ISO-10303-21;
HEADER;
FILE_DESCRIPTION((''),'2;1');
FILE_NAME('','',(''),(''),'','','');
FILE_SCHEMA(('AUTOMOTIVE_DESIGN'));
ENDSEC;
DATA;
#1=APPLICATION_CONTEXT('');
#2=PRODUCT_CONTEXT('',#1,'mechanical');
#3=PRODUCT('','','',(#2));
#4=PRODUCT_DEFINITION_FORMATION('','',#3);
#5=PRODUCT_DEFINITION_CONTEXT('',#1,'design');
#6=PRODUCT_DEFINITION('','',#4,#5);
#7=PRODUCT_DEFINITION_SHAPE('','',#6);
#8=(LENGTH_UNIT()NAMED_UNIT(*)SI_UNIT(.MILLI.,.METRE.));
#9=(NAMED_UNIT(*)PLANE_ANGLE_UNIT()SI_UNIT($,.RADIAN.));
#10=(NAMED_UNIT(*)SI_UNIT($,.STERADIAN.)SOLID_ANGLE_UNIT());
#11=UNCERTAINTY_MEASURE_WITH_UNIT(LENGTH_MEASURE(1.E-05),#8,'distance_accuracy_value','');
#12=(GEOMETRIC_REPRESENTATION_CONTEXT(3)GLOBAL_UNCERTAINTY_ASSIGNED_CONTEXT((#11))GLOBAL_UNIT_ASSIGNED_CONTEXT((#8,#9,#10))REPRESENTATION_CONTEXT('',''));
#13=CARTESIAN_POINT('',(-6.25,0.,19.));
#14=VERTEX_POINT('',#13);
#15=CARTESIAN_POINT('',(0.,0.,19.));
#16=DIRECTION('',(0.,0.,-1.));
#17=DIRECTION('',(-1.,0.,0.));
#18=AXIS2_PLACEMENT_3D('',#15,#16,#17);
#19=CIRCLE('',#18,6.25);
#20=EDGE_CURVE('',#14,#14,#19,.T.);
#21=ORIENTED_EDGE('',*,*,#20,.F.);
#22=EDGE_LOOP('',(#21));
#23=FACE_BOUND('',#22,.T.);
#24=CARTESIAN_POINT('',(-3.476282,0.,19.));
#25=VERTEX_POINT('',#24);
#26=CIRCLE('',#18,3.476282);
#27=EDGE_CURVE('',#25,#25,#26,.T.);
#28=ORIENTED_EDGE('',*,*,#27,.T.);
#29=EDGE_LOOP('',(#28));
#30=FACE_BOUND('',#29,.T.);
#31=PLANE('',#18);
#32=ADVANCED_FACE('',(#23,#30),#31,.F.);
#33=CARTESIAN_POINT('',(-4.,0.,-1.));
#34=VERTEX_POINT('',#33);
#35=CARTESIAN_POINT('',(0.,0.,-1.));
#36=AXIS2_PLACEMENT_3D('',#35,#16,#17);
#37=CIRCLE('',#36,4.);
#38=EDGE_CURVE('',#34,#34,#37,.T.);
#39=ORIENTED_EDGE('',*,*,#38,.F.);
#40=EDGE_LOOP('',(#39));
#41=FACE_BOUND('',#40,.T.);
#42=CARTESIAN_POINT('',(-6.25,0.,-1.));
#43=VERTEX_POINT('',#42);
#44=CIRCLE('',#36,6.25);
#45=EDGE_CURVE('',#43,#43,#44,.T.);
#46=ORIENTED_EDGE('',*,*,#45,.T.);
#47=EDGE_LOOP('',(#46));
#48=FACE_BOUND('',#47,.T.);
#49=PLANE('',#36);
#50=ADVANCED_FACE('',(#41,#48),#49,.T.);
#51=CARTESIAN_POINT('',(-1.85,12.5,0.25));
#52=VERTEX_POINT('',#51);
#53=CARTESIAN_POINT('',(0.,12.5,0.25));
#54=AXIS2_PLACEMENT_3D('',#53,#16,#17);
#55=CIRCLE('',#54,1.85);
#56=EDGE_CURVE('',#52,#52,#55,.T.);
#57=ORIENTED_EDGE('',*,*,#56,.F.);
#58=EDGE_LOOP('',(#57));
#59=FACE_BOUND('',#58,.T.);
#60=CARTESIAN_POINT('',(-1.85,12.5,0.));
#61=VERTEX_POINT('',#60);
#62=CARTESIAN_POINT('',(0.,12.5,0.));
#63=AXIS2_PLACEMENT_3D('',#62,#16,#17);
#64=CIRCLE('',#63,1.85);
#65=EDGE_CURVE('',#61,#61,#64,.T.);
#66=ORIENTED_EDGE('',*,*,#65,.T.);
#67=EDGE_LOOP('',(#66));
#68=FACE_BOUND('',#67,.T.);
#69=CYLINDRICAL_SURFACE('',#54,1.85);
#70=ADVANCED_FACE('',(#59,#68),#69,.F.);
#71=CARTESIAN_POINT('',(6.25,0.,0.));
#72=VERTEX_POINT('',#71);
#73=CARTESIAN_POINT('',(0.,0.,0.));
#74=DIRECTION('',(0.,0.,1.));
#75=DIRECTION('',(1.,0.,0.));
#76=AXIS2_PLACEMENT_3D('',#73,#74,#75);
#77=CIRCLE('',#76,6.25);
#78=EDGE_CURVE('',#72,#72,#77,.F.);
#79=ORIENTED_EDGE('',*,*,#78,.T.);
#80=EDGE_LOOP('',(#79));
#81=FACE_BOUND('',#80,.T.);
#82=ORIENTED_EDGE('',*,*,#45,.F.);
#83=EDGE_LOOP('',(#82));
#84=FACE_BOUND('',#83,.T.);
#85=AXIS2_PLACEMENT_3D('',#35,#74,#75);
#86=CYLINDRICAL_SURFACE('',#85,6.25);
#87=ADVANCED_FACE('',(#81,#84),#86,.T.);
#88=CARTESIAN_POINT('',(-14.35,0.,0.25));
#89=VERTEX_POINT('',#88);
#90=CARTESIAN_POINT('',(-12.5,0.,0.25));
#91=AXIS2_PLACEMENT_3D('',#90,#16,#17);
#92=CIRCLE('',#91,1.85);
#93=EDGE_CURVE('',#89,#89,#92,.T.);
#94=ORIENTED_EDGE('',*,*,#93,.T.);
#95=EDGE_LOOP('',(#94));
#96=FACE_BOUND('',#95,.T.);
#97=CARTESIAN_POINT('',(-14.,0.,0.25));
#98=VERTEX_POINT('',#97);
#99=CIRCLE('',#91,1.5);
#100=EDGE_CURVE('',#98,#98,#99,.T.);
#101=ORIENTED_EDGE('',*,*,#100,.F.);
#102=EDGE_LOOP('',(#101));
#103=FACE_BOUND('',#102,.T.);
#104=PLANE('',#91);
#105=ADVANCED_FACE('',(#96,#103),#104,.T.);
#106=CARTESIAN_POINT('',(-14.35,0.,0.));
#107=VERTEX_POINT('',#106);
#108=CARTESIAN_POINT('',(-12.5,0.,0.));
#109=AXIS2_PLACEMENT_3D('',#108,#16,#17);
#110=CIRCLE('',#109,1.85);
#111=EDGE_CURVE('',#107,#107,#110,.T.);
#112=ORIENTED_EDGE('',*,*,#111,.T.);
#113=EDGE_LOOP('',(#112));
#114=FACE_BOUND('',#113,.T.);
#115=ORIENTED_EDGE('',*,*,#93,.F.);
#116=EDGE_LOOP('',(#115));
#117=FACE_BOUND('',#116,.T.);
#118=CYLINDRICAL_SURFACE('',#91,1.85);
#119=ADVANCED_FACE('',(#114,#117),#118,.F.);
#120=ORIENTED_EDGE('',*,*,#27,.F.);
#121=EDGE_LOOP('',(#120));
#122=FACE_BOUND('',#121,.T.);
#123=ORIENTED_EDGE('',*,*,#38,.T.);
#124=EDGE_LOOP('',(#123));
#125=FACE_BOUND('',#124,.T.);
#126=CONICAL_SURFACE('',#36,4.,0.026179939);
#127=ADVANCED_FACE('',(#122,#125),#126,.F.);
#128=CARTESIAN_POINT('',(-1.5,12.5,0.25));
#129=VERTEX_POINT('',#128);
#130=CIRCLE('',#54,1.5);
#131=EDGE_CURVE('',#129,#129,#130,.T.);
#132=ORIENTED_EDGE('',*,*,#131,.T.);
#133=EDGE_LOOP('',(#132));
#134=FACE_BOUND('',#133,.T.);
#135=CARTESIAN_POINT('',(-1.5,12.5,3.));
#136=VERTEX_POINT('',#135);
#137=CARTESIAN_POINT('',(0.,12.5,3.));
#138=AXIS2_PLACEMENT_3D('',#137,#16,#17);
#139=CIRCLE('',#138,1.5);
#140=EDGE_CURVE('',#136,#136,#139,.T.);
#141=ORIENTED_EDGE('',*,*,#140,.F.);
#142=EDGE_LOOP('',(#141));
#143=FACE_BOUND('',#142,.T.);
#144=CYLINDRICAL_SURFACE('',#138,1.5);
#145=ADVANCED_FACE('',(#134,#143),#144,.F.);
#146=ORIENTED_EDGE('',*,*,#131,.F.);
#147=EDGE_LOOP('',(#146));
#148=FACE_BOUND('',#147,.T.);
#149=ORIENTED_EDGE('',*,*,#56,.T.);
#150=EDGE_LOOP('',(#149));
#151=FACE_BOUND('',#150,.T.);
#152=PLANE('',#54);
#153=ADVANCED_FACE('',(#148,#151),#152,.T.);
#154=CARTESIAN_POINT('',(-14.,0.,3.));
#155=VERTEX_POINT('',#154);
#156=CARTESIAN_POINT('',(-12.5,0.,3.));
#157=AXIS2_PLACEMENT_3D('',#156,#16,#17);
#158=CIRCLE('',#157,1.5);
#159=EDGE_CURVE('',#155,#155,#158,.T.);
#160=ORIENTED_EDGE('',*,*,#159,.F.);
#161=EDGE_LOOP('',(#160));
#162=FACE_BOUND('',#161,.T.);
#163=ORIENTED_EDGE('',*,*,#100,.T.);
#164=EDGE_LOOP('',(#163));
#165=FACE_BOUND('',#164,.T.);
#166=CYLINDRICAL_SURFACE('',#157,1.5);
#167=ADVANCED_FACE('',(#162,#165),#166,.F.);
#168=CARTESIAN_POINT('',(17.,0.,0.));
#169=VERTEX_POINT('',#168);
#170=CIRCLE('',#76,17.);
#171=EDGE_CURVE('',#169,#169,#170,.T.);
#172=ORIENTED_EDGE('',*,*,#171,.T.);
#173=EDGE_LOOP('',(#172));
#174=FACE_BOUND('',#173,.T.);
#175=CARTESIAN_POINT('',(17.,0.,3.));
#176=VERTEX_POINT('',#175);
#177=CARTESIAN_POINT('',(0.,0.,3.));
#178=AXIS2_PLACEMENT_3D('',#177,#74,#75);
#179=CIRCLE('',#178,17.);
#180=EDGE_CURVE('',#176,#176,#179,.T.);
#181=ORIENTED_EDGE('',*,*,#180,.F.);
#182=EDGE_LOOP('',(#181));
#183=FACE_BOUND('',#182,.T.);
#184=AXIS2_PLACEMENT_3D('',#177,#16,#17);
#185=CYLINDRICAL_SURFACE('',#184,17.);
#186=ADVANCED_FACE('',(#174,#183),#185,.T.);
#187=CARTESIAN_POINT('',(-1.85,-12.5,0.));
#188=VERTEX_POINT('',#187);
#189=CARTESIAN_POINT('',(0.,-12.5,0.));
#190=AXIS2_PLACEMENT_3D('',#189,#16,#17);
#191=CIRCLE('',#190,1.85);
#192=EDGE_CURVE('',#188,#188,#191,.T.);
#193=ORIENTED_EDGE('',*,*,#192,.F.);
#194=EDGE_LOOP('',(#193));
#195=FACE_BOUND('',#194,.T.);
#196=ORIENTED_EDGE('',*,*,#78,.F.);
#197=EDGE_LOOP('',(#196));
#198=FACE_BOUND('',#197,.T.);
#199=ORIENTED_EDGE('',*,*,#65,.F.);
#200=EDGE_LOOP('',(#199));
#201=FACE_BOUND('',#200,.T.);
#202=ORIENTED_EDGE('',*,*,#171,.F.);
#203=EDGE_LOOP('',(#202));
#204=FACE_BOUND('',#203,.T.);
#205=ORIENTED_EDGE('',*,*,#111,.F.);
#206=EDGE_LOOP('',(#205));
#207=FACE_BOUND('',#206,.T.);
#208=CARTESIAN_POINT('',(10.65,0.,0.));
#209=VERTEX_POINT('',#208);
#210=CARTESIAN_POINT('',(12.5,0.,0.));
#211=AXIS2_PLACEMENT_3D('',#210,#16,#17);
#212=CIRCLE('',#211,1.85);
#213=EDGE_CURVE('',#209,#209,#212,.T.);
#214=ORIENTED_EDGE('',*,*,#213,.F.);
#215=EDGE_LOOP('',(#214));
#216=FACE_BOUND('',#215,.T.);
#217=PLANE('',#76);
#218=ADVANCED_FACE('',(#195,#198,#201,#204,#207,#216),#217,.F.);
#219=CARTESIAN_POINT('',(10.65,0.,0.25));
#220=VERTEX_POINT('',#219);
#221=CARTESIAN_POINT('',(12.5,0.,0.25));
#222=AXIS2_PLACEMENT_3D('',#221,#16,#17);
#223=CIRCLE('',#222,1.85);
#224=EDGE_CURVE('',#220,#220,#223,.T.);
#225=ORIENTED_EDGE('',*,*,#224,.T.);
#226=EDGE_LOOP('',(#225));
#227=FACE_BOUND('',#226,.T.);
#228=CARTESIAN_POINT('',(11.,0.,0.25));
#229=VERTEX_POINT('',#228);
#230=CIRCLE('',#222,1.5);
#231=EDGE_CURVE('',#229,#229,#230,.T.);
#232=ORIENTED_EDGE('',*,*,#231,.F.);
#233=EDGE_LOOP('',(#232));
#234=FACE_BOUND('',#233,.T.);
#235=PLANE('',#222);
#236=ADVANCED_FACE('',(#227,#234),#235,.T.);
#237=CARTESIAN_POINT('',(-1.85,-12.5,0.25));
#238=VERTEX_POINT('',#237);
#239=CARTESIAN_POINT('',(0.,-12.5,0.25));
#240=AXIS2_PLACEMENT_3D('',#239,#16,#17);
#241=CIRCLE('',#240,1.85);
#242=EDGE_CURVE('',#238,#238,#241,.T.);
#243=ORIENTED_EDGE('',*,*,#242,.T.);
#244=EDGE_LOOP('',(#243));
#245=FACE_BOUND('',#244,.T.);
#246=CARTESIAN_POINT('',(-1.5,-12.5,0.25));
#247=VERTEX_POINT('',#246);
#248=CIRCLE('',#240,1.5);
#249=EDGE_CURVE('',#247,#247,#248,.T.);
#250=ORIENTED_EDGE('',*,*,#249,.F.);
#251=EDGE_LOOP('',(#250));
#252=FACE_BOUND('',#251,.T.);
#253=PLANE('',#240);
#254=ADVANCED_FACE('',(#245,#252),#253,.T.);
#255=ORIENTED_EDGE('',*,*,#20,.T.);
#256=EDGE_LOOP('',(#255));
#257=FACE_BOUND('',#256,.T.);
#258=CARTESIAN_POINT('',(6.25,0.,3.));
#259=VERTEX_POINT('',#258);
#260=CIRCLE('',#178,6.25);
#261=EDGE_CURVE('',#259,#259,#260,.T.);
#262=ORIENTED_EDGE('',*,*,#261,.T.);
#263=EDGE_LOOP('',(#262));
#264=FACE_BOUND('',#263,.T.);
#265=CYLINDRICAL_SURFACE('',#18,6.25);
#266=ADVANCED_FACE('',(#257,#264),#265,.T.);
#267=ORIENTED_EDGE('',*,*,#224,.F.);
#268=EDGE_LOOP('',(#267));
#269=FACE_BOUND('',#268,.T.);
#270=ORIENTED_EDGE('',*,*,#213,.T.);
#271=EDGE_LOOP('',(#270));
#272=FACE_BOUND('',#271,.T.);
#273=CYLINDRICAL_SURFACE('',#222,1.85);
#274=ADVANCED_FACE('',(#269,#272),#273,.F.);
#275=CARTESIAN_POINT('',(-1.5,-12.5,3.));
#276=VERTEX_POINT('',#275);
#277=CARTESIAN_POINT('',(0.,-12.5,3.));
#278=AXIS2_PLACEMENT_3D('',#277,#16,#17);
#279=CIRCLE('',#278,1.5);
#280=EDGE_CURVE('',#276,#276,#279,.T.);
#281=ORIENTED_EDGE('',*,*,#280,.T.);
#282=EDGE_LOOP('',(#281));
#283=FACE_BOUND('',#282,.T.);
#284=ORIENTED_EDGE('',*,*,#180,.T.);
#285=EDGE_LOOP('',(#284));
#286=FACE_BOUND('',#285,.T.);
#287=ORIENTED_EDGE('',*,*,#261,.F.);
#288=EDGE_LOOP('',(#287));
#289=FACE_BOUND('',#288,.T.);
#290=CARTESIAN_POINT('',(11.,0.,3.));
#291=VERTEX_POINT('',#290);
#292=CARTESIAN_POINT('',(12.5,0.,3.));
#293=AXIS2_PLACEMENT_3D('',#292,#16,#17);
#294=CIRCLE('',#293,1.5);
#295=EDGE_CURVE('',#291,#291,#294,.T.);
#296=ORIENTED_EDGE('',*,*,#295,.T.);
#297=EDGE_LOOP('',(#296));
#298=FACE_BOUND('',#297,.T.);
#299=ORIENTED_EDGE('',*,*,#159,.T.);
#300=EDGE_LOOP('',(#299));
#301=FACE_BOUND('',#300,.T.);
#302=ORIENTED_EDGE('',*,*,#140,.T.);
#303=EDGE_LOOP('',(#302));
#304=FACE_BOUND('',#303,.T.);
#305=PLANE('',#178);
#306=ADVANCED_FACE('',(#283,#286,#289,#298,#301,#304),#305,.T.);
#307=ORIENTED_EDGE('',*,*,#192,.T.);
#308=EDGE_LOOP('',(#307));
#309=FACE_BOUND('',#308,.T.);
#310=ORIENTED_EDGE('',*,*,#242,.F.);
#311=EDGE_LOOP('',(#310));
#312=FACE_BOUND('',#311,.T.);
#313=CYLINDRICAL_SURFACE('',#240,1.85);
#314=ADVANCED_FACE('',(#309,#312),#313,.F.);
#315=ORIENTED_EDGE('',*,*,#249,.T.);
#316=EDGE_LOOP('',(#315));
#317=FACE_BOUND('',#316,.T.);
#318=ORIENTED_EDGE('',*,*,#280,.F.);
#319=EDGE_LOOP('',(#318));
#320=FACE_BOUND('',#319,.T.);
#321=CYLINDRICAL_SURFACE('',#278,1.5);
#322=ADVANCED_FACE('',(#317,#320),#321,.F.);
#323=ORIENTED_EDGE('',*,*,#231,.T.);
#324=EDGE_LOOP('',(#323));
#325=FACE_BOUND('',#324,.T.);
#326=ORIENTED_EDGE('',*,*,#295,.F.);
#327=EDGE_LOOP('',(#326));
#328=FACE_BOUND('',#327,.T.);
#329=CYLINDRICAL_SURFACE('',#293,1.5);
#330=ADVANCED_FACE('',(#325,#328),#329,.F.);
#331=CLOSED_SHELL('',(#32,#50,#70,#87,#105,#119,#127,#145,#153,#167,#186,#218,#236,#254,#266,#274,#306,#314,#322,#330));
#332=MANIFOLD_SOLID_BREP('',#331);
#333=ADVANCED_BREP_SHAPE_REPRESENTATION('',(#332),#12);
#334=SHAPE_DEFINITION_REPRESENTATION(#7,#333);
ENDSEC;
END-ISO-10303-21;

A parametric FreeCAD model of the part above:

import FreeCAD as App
import Part
import Sketcher

V = App.Vector


def faces_at(feature, points):
    """Names of the faces that lie closest to the given points."""
    faces = feature.Shape.Faces
    near = lambda p: min(range(len(faces)), key=lambda i: faces[i].distToShape(Part.Vertex(*p))[0])
    return sorted({f"Face{near(p) + 1}" for p in points})

doc = App.newDocument("Part")
params = doc.addObject("Spreadsheet::Sheet", "Params")
for row, (alias, value) in enumerate([
    ("sketch1_diameter", "34 mm"),
    ("pad1_length", "3 mm"),
    ("sketch2_diameter", "3 mm"),
    ("sketch3_diameter", "12.5 mm"),
    ("pad2_length", "1 mm"),
    ("sketch4_diameter", "12.5 mm"),
    ("pad3_length", "20 mm"),
    ("sketch5_diameter", "8 mm"),
    ("pad4_length", "32.272992 mm"),
    ("draft_angle", "1.5 deg"),
    ("sketch6_diameter", "3 mm"),
    ("sketch6_diameter2", "3.7 mm"),
    ("pocket2_length", "0.25 mm"),
], start=1):
    params.set(f"A{row}", alias)
    params.set(f"B{row}", "=" + value)
    params.setAlias(f"B{row}", alias)

body = doc.addObject("PartDesign::Body", "Body")

# Sketch on XY plane
sketch1 = doc.addObject("Sketcher::SketchObject", "Sketch")
body.addObject(sketch1)
sketch1.AttachmentSupport = (doc.XY_Plane, [""])
sketch1.MapMode = "FlatFace"
sketch1.addGeometry(Part.Circle(V(0, 0, 0), V(0, 0, 1), 17), False)
sketch1.addConstraint([
    Sketcher.Constraint("Coincident", 0, 3, -1, 1),
    Sketcher.Constraint("Diameter", 0, 34.0),
])
sketch1.setExpression("Constraints[1]", "Params.sketch1_diameter")
pad1 = doc.addObject("PartDesign::Pad", "Pad")
body.addObject(pad1)
pad1.Profile = sketch1
pad1.setExpression("Length", "Params.pad1_length")

# Sketch on XY plane
sketch2 = doc.addObject("Sketcher::SketchObject", "Sketch001")
body.addObject(sketch2)
sketch2.AttachmentSupport = (doc.XY_Plane, [""])
sketch2.MapMode = "FlatFace"
sketch2.addGeometry([
    Part.Circle(V(0, 12.5, 0), V(0, 0, 1), 1.5),
    Part.Circle(V(-12.5, 0, 0), V(0, 0, 1), 1.5),
    Part.Circle(V(0, -12.5, 0), V(0, 0, 1), 1.5),
    Part.Circle(V(12.5, 0, 0), V(0, 0, 1), 1.5),
], False)
sketch2.addConstraint([
    Sketcher.Constraint("Equal", 0, 1),
    Sketcher.Constraint("Equal", 1, 2),
    Sketcher.Constraint("Equal", 2, 3),
    Sketcher.Constraint("Symmetric", 0, 3, 2, 3, -1, 1),
    Sketcher.Constraint("Symmetric", 1, 3, 3, 3, -1, 1),
    Sketcher.Constraint("PointOnObject", 0, 3, -2),
    Sketcher.Constraint("PointOnObject", 1, 3, -1),
    Sketcher.Constraint("Diameter", 0, 3.0),
    Sketcher.Constraint("DistanceY", 2, 3, 0, 3, 25.0),
    Sketcher.Constraint("DistanceX", 1, 3, 3, 3, 25.0),
])
sketch2.setExpression("Constraints[7]", "Params.sketch2_diameter")
pocket1 = doc.addObject("PartDesign::Pocket", "Pocket")
body.addObject(pocket1)
pocket1.Profile = sketch2
pocket1.Type = "ThroughAll"
pocket1.Reversed = True

# Sketch on XY plane
sketch3 = doc.addObject("Sketcher::SketchObject", "Sketch002")
body.addObject(sketch3)
sketch3.AttachmentSupport = (doc.XY_Plane, [""])
sketch3.MapMode = "FlatFace"
sketch3.addGeometry(Part.Circle(V(0, 0, 0), V(0, 0, 1), 6), False)
sketch3.addConstraint([
    Sketcher.Constraint("Coincident", 0, 3, -1, 1),
    Sketcher.Constraint("Diameter", 0, 12.5),
])
sketch3.setExpression("Constraints[1]", "Params.sketch3_diameter")
pad2 = doc.addObject("PartDesign::Pad", "Pad001")
body.addObject(pad2)
pad2.Profile = sketch3
pad2.setExpression("Length", "Params.pad2_length")
pad2.Reversed = True

# Sketch on XY plane
sketch4 = doc.addObject("Sketcher::SketchObject", "Sketch003")
body.addObject(sketch4)
sketch4.AttachmentSupport = (doc.XY_Plane, [""])
sketch4.MapMode = "FlatFace"
sketch4.AttachmentOffset = App.Placement(V(0, 0, 19), App.Rotation())
sketch4.addGeometry(Part.Circle(V(0, 0, 0), V(0, 0, 1), 6), False)
sketch4.addConstraint([
    Sketcher.Constraint("Coincident", 0, 3, -1, 1),
    Sketcher.Constraint("Diameter", 0, 12.5),
])
sketch4.setExpression("Constraints[1]", "Params.sketch4_diameter")
pad3 = doc.addObject("PartDesign::Pad", "Pad002")
body.addObject(pad3)
pad3.Profile = sketch4
pad3.setExpression("Length", "Params.pad3_length")
pad3.Reversed = True
body2 = doc.addObject("PartDesign::Body", "Body001")

# Sketch on XY plane
sketch5 = doc.addObject("Sketcher::SketchObject", "Sketch004")
body2.addObject(sketch5)
sketch5.AttachmentSupport = (doc.getObject("XY_Plane001"), [""])
sketch5.MapMode = "FlatFace"
sketch5.AttachmentOffset = App.Placement(V(0, 0, -1), App.Rotation())
sketch5.addGeometry(Part.Circle(V(0, 0, 0), V(0, 0, 1), 4), False)
sketch5.addConstraint([
    Sketcher.Constraint("Coincident", 0, 3, -1, 1),
    Sketcher.Constraint("Diameter", 0, 8.0),
])
sketch5.setExpression("Constraints[1]", "Params.sketch5_diameter")
pad4 = doc.addObject("PartDesign::Pad", "Pad003")
body2.addObject(pad4)
pad4.Profile = sketch5
pad4.setExpression("Length", "Params.pad4_length")
doc.recompute()

datumplane = doc.addObject("PartDesign::Plane", "DatumPlane")
body2.addObject(datumplane)
datumplane.AttachmentSupport = (doc.getObject("XY_Plane001"), [""])
datumplane.MapMode = "FlatFace"
datumplane.AttachmentOffset = App.Placement(V(0, 0, -1), App.Rotation())
draft = doc.addObject("PartDesign::Draft", "Draft")
body2.addObject(draft)
draft.Base = (pad4, faces_at(pad4, [(4, 0, 15.136)]))
draft.NeutralPlane = (datumplane, [""])
draft.setExpression("Angle", "Params.draft_angle")
draft.Reversed = False
doc.recompute()

boolean = doc.addObject("PartDesign::Boolean", "Boolean")
body.addObject(boolean)
boolean.Type = "Cut"
boolean.addObjects([body2])

# Sketch on XY plane
sketch6 = doc.addObject("Sketcher::SketchObject", "Sketch005")
body.addObject(sketch6)
sketch6.AttachmentSupport = (doc.XY_Plane, [""])
sketch6.MapMode = "FlatFace"
sketch6.addGeometry([
    Part.Circle(V(0, 12.5, 0), V(0, 0, 1), 1.9),  # 0
    Part.Circle(V(0, 12.5, 0), V(0, 0, 1), 1.5),  # 1
    Part.Circle(V(-12.5, 0, 0), V(0, 0, 1), 1.9),  # 2
    Part.Circle(V(-12.5, 0, 0), V(0, 0, 1), 1.5),  # 3
    Part.Circle(V(0, -12.5, 0), V(0, 0, 1), 1.9),  # 4
    Part.Circle(V(0, -12.5, 0), V(0, 0, 1), 1.5),  # 5
    Part.Circle(V(12.5, 0, 0), V(0, 0, 1), 1.9),  # 6
    Part.Circle(V(12.5, 0, 0), V(0, 0, 1), 1.5),  # 7
], False)
sketch6.addConstraint([
    Sketcher.Constraint("Coincident", 1, 3, 0, 3),
    Sketcher.Constraint("Coincident", 3, 3, 2, 3),
    Sketcher.Constraint("Coincident", 5, 3, 4, 3),
    Sketcher.Constraint("Coincident", 7, 3, 6, 3),
    Sketcher.Constraint("Equal", 0, 2),
    Sketcher.Constraint("Equal", 1, 3),
    Sketcher.Constraint("Equal", 2, 4),
    Sketcher.Constraint("Equal", 3, 5),
    Sketcher.Constraint("Equal", 4, 6),
    Sketcher.Constraint("Equal", 5, 7),
    Sketcher.Constraint("Symmetric", 0, 3, 4, 3, -1, 1),
    Sketcher.Constraint("Symmetric", 2, 3, 6, 3, -1, 1),
    Sketcher.Constraint("PointOnObject", 0, 3, -2),
    Sketcher.Constraint("PointOnObject", 2, 3, -1),
    Sketcher.Constraint("Diameter", 1, 3.0),
    Sketcher.Constraint("Diameter", 0, 3.7),
    Sketcher.Constraint("DistanceY", 4, 3, 0, 3, 25.0),
    Sketcher.Constraint("DistanceX", 2, 3, 6, 3, 25.0),
])
sketch6.setExpression("Constraints[14]", "Params.sketch6_diameter")
sketch6.setExpression("Constraints[15]", "Params.sketch6_diameter2")
pocket2 = doc.addObject("PartDesign::Pocket", "Pocket001")
body.addObject(pocket2)
pocket2.Profile = sketch6
pocket2.setExpression("Length", "Params.pocket2_length")
pocket2.Reversed = True

doc.recompute()
